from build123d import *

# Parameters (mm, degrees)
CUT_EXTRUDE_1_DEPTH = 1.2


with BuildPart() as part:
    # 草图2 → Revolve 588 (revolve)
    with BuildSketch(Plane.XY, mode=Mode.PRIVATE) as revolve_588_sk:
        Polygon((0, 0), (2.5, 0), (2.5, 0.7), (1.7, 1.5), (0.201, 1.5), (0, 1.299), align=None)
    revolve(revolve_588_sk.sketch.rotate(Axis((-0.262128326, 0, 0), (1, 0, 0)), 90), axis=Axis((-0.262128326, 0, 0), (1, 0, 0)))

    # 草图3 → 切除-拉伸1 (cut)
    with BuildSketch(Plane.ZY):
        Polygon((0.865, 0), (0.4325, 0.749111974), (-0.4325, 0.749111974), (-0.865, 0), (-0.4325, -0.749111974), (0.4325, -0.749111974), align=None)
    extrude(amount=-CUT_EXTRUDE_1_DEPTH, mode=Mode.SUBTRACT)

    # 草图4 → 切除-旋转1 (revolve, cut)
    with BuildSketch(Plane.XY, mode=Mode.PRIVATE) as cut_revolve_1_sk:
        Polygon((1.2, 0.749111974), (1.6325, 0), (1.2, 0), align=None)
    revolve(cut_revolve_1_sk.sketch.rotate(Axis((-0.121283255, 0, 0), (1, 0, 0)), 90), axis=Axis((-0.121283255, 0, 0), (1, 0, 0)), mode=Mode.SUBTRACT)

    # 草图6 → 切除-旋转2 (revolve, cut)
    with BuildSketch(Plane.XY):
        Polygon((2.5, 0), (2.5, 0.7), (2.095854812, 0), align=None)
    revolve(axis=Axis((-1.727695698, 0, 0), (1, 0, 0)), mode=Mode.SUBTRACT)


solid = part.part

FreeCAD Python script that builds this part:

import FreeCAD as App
import Part
import Sketcher
Q = App.Units.Quantity

doc = App.newDocument("Part")
params = doc.addObject("Spreadsheet::Sheet", "Params")
for row, (alias, value) in enumerate([
    ("sketch1_width", "2.5 mm"),
    ("sketch1_height", "0.7 mm"),
    ("revolution_angle", "360 deg"),
    ("pocket1_length", "1.2 mm"),
    ("groove_angle", "360 deg"),
    ("sketch4_height", "0.7 mm"),
    ("groove2_angle", "360 deg"),
], start=1):
    params.set(f"A{row}", alias)
    params.set(f"B{row}", "=" + value)
    params.setAlias(f"B{row}", alias)

body = doc.addObject("PartDesign::Body", "Body")

sketch1 = body.newObject("Sketcher::SketchObject", "Sketch")
sketch1.AttachmentSupport = (doc.getObject("XY_Plane"), [""])
sketch1.MapMode = "FlatFace"
sketch1.addGeometry([
    Part.LineSegment(App.Vector(0, 0, 0), App.Vector(2.5, 0, 0)),
    Part.LineSegment(App.Vector(2.5, 0, 0), App.Vector(2.5, 0.7, 0)),
    Part.LineSegment(App.Vector(2.5, 0.7, 0), App.Vector(1.7, 1.5, 0)),
    Part.LineSegment(App.Vector(1.7, 1.5, 0), App.Vector(0.2, 1.5, 0)),
    Part.LineSegment(App.Vector(0.2, 1.5, 0), App.Vector(0, 1.3, 0)),
    Part.LineSegment(App.Vector(0, 1.3, 0), App.Vector(0, 0, 0)),
], False)
sketch1.addConstraint([
    Sketcher.Constraint("Coincident", 0, 2, 1, 1),
    Sketcher.Constraint("Coincident", 1, 2, 2, 1),
    Sketcher.Constraint("Coincident", 2, 2, 3, 1),
    Sketcher.Constraint("Coincident", 3, 2, 4, 1),
    Sketcher.Constraint("Coincident", 4, 2, 5, 1),
    Sketcher.Constraint("Coincident", 5, 2, 0, 1),
    Sketcher.Constraint("Horizontal", 0),
    Sketcher.Constraint("Vertical", 1),
    Sketcher.Constraint("Horizontal", 3),
    Sketcher.Constraint("Vertical", 5),
    Sketcher.Constraint("Coincident", 5, 2, -1, 1),
    Sketcher.Constraint("Perpendicular", 2, 4),
    Sketcher.Constraint("Angle", 2, Q("135 deg")),
    Sketcher.Constraint("DistanceX", 0, 1, 0, 2, Q("2.5 mm")),
    Sketcher.Constraint("DistanceY", 1, 1, 1, 2, Q("0.7 mm")),
    Sketcher.Constraint("DistanceX", -1, 1, 2, 2, Q("1.7 mm")),
    Sketcher.Constraint("DistanceX", 3, 2, 3, 1, Q("1.499 mm")),
])
sketch1.setExpression("Constraints[13]", "Params.sketch1_width")
sketch1.setExpression("Constraints[14]", "Params.sketch1_height")
revolution = body.newObject("PartDesign::Revolution", "Revolution")
revolution.Profile = sketch1
revolution.ReferenceAxis = (sketch1, ["H_Axis"])
revolution.setExpression("Angle", "Params.revolution_angle")

sketch2 = body.newObject("Sketcher::SketchObject", "Sketch001")
sketch2.AttachmentSupport = (doc.getObject("YZ_Plane"), [""])
sketch2.MapMode = "FlatFace"
sketch2.addGeometry([
    Part.LineSegment(App.Vector(0, 0.9, 0), App.Vector(0.7, 0.4, 0)),
    Part.LineSegment(App.Vector(0.7, 0.4, 0), App.Vector(0.7, -0.4, 0)),
    Part.LineSegment(App.Vector(0.7, -0.4, 0), App.Vector(0, -0.9, 0)),
    Part.LineSegment(App.Vector(0, -0.9, 0), App.Vector(-0.7, -0.4, 0)),
    Part.LineSegment(App.Vector(-0.7, -0.4, 0), App.Vector(-0.7, 0.4, 0)),
    Part.LineSegment(App.Vector(-0.7, 0.4, 0), App.Vector(0, 0.9, 0)),
], False)
sketch2.addConstraint([
    Sketcher.Constraint("Coincident", 0, 2, 1, 1),
    Sketcher.Constraint("Coincident", 1, 2, 2, 1),
    Sketcher.Constraint("Coincident", 2, 2, 3, 1),
    Sketcher.Constraint("Coincident", 3, 2, 4, 1),
    Sketcher.Constraint("Coincident", 4, 2, 5, 1),
    Sketcher.Constraint("Coincident", 5, 2, 0, 1),
    Sketcher.Constraint("Vertical", 1),
    Sketcher.Constraint("Vertical", 4),
    Sketcher.Constraint("Symmetric", 0, 2, 3, 2, -1, 1),
    Sketcher.Constraint("Symmetric", 2, 2, 5, 2, -1, 1),
    Sketcher.Constraint("PointOnObject", 2, 2, -2),
    Sketcher.Constraint("Parallel", 2, 5),
    Sketcher.Constraint("Horizontal", 1, 2, 3, 2),
    Sketcher.Constraint("Angle", 0, Q("-30 deg")),
    Sketcher.Constraint("DistanceY", 1, 2, 1, 1, Q("0.865 mm")),
    Sketcher.Constraint("DistanceY", 2, 2, 5, 2, Q("1.73 mm")),
])
pocket1 = body.newObject("PartDesign::Pocket", "Pocket")
pocket1.Profile = sketch2
pocket1.setExpression("Length", "Params.pocket1_length")
pocket1.Reversed = True

sketch3 = body.newObject("Sketcher::SketchObject", "Sketch002")
sketch3.AttachmentSupport = (doc.getObject("XY_Plane"), [""])
sketch3.MapMode = "FlatFace"
sketch3.addGeometry([
    Part.LineSegment(App.Vector(1.63, 0, 0), App.Vector(1.2, 0.75, 0)),
    Part.LineSegment(App.Vector(1.2, 0.75, 0), App.Vector(1.2, 0, 0)),
    Part.LineSegment(App.Vector(1.2, 0, 0), App.Vector(1.63, 0, 0)),
], False)
sketch3.addConstraint([
    Sketcher.Constraint("Coincident", 0, 2, 1, 1),
    Sketcher.Constraint("Coincident", 1, 2, 2, 1),
    Sketcher.Constraint("Coincident", 2, 2, 0, 1),
    Sketcher.Constraint("Vertical", 1),
    Sketcher.Constraint("Horizontal", 2),
    Sketcher.Constraint("PointOnObject", 1, 2, -1),
    Sketcher.Constraint("Angle", 0, Q("120 deg")),
    Sketcher.Constraint("DistanceX", -1, 1, 0, 2, Q("1.2 mm")),
    Sketcher.Constraint("Distance", 0, Q("0.865 mm")),
])
groove = body.newObject("PartDesign::Groove", "Groove")
groove.Profile = sketch3
groove.ReferenceAxis = (sketch3, ["H_Axis"])
groove.setExpression("Angle", "Params.groove_angle")

sketch4 = body.newObject("Sketcher::SketchObject", "Sketch003")
sketch4.AttachmentSupport = (doc.getObject("XY_Plane"), [""])
sketch4.MapMode = "FlatFace"
sketch4.addGeometry([
    Part.LineSegment(App.Vector(2.5, 0, 0), App.Vector(2.5, 0.7, 0)),
    Part.LineSegment(App.Vector(2.5, 0.7, 0), App.Vector(2.1, 0, 0)),
    Part.LineSegment(App.Vector(2.1, 0, 0), App.Vector(2.5, 0, 0)),
], False)
sketch4.addConstraint([
    Sketcher.Constraint("Coincident", 0, 2, 1, 1),
    Sketcher.Constraint("Coincident", 1, 2, 2, 1),
    Sketcher.Constraint("Coincident", 2, 2, 0, 1),
    Sketcher.Constraint("Vertical", 0),
    Sketcher.Constraint("Horizontal", 2),
    Sketcher.Constraint("PointOnObject", 1, 2, -1),
    Sketcher.Constraint("Angle", 1, Q("-120 deg")),
    Sketcher.Constraint("DistanceY", 0, 1, 0, 2, Q("0.7 mm")),
    Sketcher.Constraint("DistanceX", -1, 1, 0, 2, Q("2.5 mm")),
])
sketch4.setExpression("Constraints[7]", "Params.sketch4_height")
groove2 = body.newObject("PartDesign::Groove", "Groove001")
groove2.Profile = sketch4
groove2.ReferenceAxis = (sketch4, ["H_Axis"])
groove2.setExpression("Angle", "Params.groove2_angle")

doc.recompute()
